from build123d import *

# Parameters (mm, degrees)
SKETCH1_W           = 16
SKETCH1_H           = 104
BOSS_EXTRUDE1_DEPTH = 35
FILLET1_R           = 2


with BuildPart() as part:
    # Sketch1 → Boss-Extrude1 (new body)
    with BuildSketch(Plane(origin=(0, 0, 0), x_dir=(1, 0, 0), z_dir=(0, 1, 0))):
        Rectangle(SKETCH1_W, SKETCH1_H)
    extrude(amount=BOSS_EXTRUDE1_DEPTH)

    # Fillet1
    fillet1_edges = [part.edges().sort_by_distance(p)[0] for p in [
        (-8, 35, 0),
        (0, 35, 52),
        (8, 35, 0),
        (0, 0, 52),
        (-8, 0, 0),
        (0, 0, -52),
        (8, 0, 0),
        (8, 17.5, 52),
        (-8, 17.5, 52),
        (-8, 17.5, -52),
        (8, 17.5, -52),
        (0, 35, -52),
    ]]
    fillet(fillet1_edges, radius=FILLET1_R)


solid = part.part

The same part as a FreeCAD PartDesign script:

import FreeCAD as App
import Part
import Sketcher

V = App.Vector

doc = App.newDocument("Part")
body = doc.addObject("PartDesign::Body", "Body")

# Sketch on XZ plane
sketch1 = body.newObject("Sketcher::SketchObject", "Sketch")
sketch1.AttachmentSupport = (doc.getObject("XZ_Plane"), [""])
sketch1.MapMode = "FlatFace"
sketch1.addGeometry([
    Part.LineSegment(V(-8, -52, 0), V(-8, 52, 0)),
    Part.LineSegment(V(-8, 52, 0), V(8, 52, 0)),
    Part.LineSegment(V(8, 52, 0), V(8, -52, 0)),
    Part.LineSegment(V(8, -52, 0), V(-8, -52, 0)),
], False)
sketch1.addConstraint([
    Sketcher.Constraint("Coincident", 0, 2, 1, 1),
    Sketcher.Constraint("Coincident", 1, 2, 2, 1),
    Sketcher.Constraint("Coincident", 2, 2, 3, 1),
    Sketcher.Constraint("Coincident", 3, 2, 0, 1),
    Sketcher.Constraint("Vertical", 0),
    Sketcher.Constraint("Horizontal", 1),
    Sketcher.Constraint("Vertical", 2),
    Sketcher.Constraint("Horizontal", 3),
    Sketcher.Constraint("Symmetric", 0, 2, 2, 2, -1, 1),
    Sketcher.Constraint("DistanceX", 1, 1, 1, 2, 16.0),
    Sketcher.Constraint("DistanceY", 0, 1, 0, 2, 104.0),
])
pad1 = body.newObject("PartDesign::Pad", "Pad")
pad1.Profile = sketch1
pad1.Length = 35
pad1.Reversed = True
doc.recompute()

fillet = body.newObject("PartDesign::Fillet", "Fillet")
fillet.Base = (pad1, ["Edge1"])
fillet.UseAllEdges = True
fillet.Radius = 2

doc.recompute()
